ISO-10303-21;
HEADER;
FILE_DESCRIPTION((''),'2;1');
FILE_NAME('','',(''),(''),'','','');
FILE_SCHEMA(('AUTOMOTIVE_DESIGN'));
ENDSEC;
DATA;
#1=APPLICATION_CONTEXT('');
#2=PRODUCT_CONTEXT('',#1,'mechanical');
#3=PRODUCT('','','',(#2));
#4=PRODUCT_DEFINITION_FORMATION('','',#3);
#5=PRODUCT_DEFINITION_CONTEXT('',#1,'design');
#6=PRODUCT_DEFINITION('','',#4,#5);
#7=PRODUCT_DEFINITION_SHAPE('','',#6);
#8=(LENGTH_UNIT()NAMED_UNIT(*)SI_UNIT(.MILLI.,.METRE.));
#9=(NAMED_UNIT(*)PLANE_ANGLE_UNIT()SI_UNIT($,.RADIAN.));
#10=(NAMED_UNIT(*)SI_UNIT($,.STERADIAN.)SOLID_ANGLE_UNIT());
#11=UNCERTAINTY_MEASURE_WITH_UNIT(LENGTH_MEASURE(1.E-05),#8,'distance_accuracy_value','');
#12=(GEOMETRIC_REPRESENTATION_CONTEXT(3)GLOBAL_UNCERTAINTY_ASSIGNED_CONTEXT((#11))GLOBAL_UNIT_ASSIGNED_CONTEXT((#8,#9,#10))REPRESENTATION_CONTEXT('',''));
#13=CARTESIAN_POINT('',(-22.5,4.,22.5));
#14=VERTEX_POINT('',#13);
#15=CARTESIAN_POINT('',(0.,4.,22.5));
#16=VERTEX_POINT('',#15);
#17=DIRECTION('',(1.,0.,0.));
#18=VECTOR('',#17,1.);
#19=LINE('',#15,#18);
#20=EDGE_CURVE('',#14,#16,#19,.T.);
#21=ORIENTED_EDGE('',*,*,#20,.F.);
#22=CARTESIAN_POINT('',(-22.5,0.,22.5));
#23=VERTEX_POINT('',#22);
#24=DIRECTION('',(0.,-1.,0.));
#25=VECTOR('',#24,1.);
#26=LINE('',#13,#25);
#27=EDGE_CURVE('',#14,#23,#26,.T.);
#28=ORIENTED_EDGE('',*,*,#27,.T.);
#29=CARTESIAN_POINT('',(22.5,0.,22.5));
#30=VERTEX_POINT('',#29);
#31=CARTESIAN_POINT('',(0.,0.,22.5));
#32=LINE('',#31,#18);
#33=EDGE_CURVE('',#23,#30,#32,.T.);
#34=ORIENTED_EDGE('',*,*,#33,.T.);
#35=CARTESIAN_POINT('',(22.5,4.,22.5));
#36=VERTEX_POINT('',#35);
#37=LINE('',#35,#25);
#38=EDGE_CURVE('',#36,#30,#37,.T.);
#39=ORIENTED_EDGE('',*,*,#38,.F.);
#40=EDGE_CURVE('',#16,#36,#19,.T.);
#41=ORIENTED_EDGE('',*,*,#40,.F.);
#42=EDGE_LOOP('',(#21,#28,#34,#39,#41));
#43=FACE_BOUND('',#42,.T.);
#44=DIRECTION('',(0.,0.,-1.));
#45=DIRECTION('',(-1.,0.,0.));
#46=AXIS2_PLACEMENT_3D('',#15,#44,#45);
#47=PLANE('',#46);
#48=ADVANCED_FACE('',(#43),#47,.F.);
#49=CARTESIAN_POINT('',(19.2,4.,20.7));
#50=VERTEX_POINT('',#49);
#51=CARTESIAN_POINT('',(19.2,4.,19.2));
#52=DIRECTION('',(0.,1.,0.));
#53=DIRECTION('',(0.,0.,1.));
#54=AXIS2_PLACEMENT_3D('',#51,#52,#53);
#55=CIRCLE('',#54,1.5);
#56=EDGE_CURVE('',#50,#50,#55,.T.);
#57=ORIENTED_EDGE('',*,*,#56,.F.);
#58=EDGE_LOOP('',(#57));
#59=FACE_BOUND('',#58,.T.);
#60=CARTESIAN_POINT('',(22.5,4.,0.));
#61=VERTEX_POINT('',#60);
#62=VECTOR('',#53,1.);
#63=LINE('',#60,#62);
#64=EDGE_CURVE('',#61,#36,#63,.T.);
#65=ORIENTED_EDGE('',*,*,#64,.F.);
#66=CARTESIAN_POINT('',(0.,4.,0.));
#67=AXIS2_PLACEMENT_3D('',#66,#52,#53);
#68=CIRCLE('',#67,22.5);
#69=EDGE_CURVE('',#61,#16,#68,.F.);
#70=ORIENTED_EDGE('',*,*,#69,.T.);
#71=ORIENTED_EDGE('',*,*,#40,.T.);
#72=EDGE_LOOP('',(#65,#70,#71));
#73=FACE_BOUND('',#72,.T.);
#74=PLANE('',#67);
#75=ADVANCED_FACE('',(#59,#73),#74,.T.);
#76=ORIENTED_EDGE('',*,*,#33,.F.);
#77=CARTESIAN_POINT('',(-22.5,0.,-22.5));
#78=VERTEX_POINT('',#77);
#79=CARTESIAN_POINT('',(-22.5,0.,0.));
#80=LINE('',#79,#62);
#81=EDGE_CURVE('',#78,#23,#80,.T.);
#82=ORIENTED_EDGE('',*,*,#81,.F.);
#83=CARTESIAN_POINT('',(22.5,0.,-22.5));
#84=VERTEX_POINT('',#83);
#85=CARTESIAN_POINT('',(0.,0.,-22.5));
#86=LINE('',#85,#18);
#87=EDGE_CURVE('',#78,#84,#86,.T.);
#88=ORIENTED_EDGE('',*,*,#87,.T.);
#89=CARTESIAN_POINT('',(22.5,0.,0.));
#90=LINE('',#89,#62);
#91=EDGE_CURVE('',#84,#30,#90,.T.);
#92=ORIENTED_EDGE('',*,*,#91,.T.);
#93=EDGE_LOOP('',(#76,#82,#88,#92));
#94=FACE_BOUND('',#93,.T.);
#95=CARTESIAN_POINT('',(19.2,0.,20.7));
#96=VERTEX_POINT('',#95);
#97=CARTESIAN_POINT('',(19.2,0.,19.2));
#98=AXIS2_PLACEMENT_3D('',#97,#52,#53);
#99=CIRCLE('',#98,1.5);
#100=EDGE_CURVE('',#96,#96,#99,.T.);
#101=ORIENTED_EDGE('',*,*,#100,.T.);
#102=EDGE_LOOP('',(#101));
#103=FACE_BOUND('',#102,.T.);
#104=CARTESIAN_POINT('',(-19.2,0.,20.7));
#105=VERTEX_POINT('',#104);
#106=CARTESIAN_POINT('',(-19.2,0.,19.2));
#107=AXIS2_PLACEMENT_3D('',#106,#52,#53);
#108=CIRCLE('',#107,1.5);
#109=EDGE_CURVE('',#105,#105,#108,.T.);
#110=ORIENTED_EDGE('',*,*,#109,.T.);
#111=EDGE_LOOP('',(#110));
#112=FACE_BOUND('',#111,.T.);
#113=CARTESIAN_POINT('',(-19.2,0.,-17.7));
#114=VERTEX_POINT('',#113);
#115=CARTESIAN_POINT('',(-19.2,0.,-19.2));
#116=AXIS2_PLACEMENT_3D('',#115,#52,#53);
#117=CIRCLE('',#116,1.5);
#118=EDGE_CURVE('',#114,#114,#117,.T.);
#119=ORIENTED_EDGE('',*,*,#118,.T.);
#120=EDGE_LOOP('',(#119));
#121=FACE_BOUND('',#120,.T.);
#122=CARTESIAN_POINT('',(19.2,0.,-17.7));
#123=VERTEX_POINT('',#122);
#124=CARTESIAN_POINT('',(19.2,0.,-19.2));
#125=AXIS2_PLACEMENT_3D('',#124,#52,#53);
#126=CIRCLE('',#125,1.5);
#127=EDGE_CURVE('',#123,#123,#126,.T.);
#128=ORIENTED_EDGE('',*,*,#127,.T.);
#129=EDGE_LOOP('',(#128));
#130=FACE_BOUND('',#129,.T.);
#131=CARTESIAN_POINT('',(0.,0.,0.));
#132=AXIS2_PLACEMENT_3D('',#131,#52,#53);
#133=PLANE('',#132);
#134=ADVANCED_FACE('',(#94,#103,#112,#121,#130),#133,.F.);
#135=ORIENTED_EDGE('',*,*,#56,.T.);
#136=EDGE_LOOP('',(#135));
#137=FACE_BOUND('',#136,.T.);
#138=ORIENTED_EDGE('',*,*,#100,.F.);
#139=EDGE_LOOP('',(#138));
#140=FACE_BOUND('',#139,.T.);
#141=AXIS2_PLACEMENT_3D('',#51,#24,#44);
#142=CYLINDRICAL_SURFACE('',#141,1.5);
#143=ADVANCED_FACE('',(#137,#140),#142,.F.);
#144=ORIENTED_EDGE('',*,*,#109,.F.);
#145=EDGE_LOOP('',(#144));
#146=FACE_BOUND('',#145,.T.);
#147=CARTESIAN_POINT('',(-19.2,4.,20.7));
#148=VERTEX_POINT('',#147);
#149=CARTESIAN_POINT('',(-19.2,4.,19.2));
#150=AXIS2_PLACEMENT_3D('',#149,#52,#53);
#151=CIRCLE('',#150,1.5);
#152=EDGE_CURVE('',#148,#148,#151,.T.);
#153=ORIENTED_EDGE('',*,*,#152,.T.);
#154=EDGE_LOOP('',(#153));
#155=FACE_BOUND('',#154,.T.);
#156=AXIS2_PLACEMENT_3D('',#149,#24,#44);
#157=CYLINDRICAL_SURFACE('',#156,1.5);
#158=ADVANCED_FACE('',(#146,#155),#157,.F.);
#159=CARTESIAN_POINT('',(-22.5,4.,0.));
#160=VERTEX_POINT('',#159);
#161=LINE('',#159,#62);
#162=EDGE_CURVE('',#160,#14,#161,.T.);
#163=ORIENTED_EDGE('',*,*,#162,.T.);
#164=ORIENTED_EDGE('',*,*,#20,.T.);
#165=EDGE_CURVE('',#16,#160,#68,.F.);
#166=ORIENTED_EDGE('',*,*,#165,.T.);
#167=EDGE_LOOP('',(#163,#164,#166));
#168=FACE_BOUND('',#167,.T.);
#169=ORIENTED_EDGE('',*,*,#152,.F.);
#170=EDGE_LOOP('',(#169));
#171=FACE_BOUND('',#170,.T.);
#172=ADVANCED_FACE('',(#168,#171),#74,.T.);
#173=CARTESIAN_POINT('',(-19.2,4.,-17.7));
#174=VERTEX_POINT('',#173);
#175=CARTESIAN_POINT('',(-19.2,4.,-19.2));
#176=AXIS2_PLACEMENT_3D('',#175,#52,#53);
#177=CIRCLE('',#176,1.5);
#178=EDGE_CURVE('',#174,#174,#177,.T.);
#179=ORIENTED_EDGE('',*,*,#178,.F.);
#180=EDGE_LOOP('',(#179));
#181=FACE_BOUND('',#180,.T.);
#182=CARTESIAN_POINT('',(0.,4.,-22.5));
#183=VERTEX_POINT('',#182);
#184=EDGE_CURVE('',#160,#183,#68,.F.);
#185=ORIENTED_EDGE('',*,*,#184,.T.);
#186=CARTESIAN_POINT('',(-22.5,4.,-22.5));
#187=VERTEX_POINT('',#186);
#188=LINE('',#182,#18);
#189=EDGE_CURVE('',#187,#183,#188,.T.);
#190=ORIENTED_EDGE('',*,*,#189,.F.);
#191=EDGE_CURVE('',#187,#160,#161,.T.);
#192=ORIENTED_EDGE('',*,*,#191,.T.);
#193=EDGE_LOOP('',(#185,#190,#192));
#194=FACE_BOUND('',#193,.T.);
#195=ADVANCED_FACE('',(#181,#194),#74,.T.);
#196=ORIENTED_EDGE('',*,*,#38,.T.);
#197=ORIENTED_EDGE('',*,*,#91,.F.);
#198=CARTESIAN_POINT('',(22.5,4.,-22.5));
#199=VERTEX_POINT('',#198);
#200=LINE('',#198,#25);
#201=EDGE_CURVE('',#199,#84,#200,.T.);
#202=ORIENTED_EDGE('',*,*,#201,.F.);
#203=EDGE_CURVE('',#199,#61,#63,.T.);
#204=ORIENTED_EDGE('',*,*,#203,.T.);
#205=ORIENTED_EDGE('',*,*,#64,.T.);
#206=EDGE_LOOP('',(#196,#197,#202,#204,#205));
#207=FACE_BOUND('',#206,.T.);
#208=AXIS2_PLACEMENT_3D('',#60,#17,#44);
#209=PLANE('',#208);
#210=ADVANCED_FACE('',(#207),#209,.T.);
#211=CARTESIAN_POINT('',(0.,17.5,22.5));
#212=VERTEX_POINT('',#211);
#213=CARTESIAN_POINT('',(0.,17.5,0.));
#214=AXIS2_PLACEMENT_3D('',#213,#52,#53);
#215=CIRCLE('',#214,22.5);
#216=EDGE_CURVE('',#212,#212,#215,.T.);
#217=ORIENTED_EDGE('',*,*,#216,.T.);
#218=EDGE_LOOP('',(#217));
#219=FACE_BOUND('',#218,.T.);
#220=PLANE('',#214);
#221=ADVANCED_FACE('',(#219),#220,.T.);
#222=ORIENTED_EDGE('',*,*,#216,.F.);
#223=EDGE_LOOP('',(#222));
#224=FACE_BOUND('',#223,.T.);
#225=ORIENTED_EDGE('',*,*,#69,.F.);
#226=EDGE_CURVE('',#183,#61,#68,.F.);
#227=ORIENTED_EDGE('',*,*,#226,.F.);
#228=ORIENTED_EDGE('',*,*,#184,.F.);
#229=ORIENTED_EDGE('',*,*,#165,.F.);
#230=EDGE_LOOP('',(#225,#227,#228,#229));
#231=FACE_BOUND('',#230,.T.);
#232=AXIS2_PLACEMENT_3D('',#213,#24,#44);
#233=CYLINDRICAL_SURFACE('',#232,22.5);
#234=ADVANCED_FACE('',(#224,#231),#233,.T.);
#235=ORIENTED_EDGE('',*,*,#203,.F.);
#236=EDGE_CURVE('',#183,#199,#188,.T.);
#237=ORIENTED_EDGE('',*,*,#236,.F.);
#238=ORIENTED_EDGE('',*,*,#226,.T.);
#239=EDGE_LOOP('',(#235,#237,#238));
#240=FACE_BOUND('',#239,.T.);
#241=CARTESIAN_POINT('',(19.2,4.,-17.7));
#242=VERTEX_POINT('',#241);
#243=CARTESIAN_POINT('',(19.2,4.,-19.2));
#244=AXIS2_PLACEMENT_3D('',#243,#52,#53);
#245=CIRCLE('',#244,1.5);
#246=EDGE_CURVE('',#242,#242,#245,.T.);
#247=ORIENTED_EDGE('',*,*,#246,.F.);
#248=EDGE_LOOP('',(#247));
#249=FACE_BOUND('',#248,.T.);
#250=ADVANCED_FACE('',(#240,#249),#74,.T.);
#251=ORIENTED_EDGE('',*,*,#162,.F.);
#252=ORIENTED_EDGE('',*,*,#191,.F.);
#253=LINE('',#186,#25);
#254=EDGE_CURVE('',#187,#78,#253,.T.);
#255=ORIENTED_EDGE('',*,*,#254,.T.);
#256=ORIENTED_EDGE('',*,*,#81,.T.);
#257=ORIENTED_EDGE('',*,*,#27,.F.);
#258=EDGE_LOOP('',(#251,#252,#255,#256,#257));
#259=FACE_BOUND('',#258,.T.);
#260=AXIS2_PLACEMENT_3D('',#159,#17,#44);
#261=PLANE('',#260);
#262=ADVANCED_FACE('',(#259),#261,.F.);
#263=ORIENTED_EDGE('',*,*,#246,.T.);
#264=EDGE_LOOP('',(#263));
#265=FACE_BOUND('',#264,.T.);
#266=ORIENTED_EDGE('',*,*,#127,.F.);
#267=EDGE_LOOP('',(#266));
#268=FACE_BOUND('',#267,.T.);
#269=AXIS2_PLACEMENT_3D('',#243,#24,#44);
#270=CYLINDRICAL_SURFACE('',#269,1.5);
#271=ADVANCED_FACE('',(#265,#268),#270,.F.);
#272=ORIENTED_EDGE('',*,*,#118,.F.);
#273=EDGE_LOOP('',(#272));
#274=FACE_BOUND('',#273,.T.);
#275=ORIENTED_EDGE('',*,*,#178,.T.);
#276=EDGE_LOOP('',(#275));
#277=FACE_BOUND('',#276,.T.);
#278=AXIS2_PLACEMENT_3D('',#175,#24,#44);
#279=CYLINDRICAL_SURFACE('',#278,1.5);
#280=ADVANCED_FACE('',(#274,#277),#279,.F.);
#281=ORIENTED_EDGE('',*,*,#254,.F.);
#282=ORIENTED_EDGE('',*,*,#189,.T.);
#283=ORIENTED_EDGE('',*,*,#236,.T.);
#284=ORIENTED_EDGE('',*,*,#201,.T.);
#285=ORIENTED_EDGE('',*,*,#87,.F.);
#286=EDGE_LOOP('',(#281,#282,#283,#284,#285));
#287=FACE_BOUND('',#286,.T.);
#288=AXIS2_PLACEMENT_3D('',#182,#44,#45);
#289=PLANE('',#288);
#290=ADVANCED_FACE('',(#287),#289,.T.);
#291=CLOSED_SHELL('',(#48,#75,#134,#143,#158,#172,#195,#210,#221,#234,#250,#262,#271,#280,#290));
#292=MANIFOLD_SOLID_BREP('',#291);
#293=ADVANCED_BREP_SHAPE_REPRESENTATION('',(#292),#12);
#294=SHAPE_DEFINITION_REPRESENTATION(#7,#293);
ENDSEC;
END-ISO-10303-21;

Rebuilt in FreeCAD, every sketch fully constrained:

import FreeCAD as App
import Part
import Sketcher
from FreeCAD import Vector

doc = App.newDocument("Part")
body = doc.addObject("PartDesign::Body", "Body")

# Sketch on XZ plane
sketch1 = body.newObject("Sketcher::SketchObject", "Sketch")
sketch1.AttachmentSupport = (doc.getObject("XZ_Plane"), [""])
sketch1.MapMode = "FlatFace"
sketch1.addGeometry([
    Part.LineSegment(Vector(-22.5, 22.5, 0), Vector(22.5, 22.5, 0)),  # 0
    Part.LineSegment(Vector(22.5, 22.5, 0), Vector(22.5, -22.5, 0)),  # 1
    Part.LineSegment(Vector(22.5, -22.5, 0), Vector(-22.5, -22.5, 0)),  # 2
    Part.LineSegment(Vector(-22.5, -22.5, 0), Vector(-22.5, 22.5, 0)),  # 3
    Part.Circle(Vector(-19.2, 19.2, 0), Vector(0, 0, 1), 1.5),  # 4
    Part.Circle(Vector(19.2, -19.2, 0), Vector(0, 0, 1), 1.5),  # 5
    Part.Circle(Vector(-19.2, -19.2, 0), Vector(0, 0, 1), 1.5),  # 6
    Part.Circle(Vector(19.2, 19.2, 0), Vector(0, 0, 1), 1.5),  # 7
], False)
sketch1.addConstraint([
    Sketcher.Constraint("Coincident", 0, 2, 1, 1),
    Sketcher.Constraint("Coincident", 1, 2, 2, 1),
    Sketcher.Constraint("Coincident", 2, 2, 3, 1),
    Sketcher.Constraint("Coincident", 3, 2, 0, 1),
    Sketcher.Constraint("Horizontal", 0),
    Sketcher.Constraint("Vertical", 1),
    Sketcher.Constraint("Horizontal", 2),
    Sketcher.Constraint("Vertical", 3),
    Sketcher.Constraint("Equal", 4, 5),
    Sketcher.Constraint("Equal", 5, 6),
    Sketcher.Constraint("Equal", 6, 7),
    Sketcher.Constraint("Symmetric", 4, 3, 5, 3, -1, 1),
    Sketcher.Constraint("Symmetric", 6, 3, 7, 3, -1, 1),
    Sketcher.Constraint("Symmetric", 0, 2, 2, 2, -1, 1),
    Sketcher.Constraint("Symmetric", 5, 3, 6, 3, -2),
    Sketcher.Constraint("Equal", 2, 1),
    Sketcher.Constraint("Diameter", 4, 3.0),
    Sketcher.Constraint("DistanceX", 0, 1, 0, 2, 45.0),
    Sketcher.Constraint("DistanceX", 4, 3, -1, 1, 19.2),
    Sketcher.Constraint("DistanceY", -1, 1, 4, 3, 19.2),
])
pad1 = body.newObject("PartDesign::Pad", "Pad")
pad1.Profile = sketch1
pad1.Length = 4
pad1.Reversed = True

# Sketch on XZ plane
sketch2 = body.newObject("Sketcher::SketchObject", "Sketch001")
sketch2.AttachmentSupport = (doc.getObject("XZ_Plane"), [""])
sketch2.MapMode = "FlatFace"
sketch2.addGeometry(Part.Circle(Vector(0, 0, 0), Vector(0, 0, 1), 22.5), False)
sketch2.addConstraint([
    Sketcher.Constraint("Coincident", 0, 3, -1, 1),
    Sketcher.Constraint("Diameter", 0, 45.0),
])
pad2 = body.newObject("PartDesign::Pad", "Pad001")
pad2.Profile = sketch2
pad2.Length = 17.5
pad2.Reversed = True

doc.recompute()
